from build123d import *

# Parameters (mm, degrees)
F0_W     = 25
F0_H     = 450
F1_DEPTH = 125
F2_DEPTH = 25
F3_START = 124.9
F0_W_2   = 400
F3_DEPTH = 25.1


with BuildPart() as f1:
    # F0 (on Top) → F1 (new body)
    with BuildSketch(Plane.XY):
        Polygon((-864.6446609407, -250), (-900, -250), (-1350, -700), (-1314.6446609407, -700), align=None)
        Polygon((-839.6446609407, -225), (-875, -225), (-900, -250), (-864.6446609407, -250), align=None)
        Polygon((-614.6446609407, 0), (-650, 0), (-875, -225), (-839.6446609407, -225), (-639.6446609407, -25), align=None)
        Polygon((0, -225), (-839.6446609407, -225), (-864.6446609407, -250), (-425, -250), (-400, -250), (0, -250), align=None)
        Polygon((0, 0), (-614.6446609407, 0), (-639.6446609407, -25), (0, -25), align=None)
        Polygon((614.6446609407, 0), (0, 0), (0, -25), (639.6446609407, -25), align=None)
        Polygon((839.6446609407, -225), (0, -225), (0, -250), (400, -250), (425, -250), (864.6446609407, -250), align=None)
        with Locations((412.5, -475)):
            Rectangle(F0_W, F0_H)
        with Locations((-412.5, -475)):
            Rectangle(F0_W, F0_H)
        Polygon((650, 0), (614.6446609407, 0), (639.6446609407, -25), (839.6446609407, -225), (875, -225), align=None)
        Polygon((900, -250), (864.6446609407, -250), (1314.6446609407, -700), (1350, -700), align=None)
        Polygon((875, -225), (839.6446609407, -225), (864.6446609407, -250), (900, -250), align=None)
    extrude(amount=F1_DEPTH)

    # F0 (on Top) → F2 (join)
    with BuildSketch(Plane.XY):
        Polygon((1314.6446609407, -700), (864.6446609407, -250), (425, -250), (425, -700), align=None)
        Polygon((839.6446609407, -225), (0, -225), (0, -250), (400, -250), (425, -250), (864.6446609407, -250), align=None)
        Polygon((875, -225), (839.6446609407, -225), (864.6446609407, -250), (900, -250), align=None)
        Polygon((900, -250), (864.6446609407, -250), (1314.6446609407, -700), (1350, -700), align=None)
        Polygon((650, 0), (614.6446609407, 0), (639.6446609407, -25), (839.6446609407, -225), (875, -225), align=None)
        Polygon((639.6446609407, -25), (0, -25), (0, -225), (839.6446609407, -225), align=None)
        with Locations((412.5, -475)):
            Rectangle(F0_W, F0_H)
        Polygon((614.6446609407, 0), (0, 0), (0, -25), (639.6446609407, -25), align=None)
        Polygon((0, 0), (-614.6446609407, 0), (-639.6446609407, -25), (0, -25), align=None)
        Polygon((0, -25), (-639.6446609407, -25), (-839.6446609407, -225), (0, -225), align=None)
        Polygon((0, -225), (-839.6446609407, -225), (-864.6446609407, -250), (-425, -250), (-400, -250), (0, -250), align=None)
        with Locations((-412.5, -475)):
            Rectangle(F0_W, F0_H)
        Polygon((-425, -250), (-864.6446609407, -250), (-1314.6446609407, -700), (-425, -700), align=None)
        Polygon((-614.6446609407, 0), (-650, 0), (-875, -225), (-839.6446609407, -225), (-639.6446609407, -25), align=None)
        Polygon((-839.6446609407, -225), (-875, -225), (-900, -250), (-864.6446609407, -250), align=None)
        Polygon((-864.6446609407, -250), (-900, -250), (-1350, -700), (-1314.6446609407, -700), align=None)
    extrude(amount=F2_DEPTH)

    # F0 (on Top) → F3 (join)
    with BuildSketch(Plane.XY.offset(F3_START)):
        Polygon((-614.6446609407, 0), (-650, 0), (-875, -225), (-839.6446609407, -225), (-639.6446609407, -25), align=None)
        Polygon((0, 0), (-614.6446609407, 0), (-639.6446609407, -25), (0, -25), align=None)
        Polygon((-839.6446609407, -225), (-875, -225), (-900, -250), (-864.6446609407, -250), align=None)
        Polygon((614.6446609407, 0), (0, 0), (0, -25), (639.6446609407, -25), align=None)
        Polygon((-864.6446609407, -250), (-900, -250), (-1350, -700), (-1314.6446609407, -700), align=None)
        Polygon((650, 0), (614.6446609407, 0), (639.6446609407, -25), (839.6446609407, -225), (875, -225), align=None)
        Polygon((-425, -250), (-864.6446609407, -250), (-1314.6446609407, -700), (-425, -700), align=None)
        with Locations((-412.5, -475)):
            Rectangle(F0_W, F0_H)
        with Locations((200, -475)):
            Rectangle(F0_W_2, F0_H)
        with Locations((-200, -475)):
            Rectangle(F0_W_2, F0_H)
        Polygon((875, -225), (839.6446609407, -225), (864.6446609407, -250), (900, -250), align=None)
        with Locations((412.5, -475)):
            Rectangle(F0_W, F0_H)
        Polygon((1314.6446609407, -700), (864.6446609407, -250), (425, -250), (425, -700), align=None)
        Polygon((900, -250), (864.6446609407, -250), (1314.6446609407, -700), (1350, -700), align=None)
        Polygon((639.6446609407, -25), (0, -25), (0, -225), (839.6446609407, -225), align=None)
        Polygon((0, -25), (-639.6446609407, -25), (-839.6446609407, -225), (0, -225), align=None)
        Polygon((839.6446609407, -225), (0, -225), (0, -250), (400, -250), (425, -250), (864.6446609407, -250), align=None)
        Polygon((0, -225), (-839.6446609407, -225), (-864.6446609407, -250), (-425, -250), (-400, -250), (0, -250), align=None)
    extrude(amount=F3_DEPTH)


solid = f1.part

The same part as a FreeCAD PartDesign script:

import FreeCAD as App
import Part
import Sketcher

V = App.Vector


def add_polygon(sketch, points):
    """Adds a closed chain of lines whose ends are joined by coincident constraints."""
    first, n = sketch.GeometryCount, len(points)
    for a, b in zip(points, points[1:] + points[:1]):
        sketch.addGeometry(Part.LineSegment(App.Vector(*a, 0), App.Vector(*b, 0)), False)
    for i in range(n):
        sketch.addConstraint(Sketcher.Constraint("Coincident", first + i, 2, first + (i + 1) % n, 1))

doc = App.newDocument("Part")
body = doc.addObject("PartDesign::Body", "Body")

sketch1 = doc.addObject("Sketcher::SketchObject", "Sketch")
body.addObject(sketch1)
sketch1.AttachmentSupport = (doc.XY_Plane, [""])
sketch1.MapMode = "FlatFace"
add_polygon(sketch1, [(425, -250), (864.644661, -250), (1314.644661, -700), (1350, -700), (650, 0), (-650, 0), (-1350, -700), (-1314.644661, -700), (-864.644661, -250), (-425, -250), (-425, -700), (-400, -700), (-400, -250), (400, -250), (400, -700), (425, -700)])
add_polygon(sketch1, [(639.644661, -25), (839.644661, -225), (-839.644661, -225), (-639.644661, -25)])
sketch1.addConstraint([
    Sketcher.Constraint("Horizontal", 0),
    Sketcher.Constraint("Horizontal", 2),
    Sketcher.Constraint("Horizontal", 4),
    Sketcher.Constraint("Horizontal", 6),
    Sketcher.Constraint("Horizontal", 8),
    Sketcher.Constraint("Vertical", 9),
    Sketcher.Constraint("Horizontal", 10),
    Sketcher.Constraint("Vertical", 11),
    Sketcher.Constraint("Horizontal", 12),
    Sketcher.Constraint("Vertical", 13),
    Sketcher.Constraint("Horizontal", 14),
    Sketcher.Constraint("Vertical", 15),
    Sketcher.Constraint("Horizontal", 17),
    Sketcher.Constraint("Horizontal", 19),
    Sketcher.Constraint("Symmetric", 3, 2, 4, 2, -1, 1),
    Sketcher.Constraint("Symmetric", 2, 2, 5, 2, -2),
    Sketcher.Constraint("Symmetric", 0, 2, 7, 2, -2),
    Sketcher.Constraint("Symmetric", 10, 2, 13, 2, -2),
    Sketcher.Constraint("Parallel", 1, 3),
    Sketcher.Constraint("Perpendicular", 3, 5),
    Sketcher.Constraint("Parallel", 5, 7),
    Sketcher.Constraint("Perpendicular", 7, 16),
    Sketcher.Constraint("Perpendicular", 16, 18),
    Sketcher.Constraint("Horizontal", 6, 2, 9, 2),
    Sketcher.Constraint("Horizontal", 8, 2, 11, 2),
    Sketcher.Constraint("Equal", 0, 8),
    Sketcher.Constraint("DistanceX", 4, 2, 4, 1, 1300.0),
    Sketcher.Constraint("DistanceX", 10, 1, 10, 2, 25.0),
    Sketcher.Constraint("DistanceX", 12, 1, 12, 2, 800.0),
    Sketcher.Constraint("DistanceY", 9, 2, 9, 1, 450.0),
    Sketcher.Constraint("DistanceY", 0, 2, -1, 1, 250.0),
    Sketcher.Constraint("DistanceY", 16, 2, -1, 1, 225.0),
    Sketcher.Constraint("DistanceY", 18, 2, -1, 1, 25.0),
    Sketcher.Constraint("DistanceX", 16, 2, 0, 2, 25.0),
    Sketcher.Constraint("DistanceX", 7, 2, 17, 2, 25.0),
    Sketcher.Constraint("DistanceX", 0, 1, 0, 2, 439.644661),
])
pad1 = doc.addObject("PartDesign::Pad", "Pad")
body.addObject(pad1)
pad1.Profile = sketch1
pad1.Length = 125

sketch2 = doc.addObject("Sketcher::SketchObject", "Sketch001")
body.addObject(sketch2)
sketch2.AttachmentSupport = (doc.XY_Plane, [""])
sketch2.MapMode = "FlatFace"
add_polygon(sketch2, [(400, -250), (400, -700), (1350, -700), (650, 0), (-650, 0), (-1350, -700), (-400, -700), (-400, -250)])
sketch2.addConstraint([
    Sketcher.Constraint("Vertical", 0),
    Sketcher.Constraint("Horizontal", 1),
    Sketcher.Constraint("Horizontal", 3),
    Sketcher.Constraint("Horizontal", 5),
    Sketcher.Constraint("Vertical", 6),
    Sketcher.Constraint("Horizontal", 7),
    Sketcher.Constraint("Symmetric", 2, 2, 3, 2, -1, 1),
    Sketcher.Constraint("Symmetric", 1, 2, 4, 2, -2),
    Sketcher.Constraint("Perpendicular", 2, 4),
    Sketcher.Constraint("Equal", 1, 5),
    Sketcher.Constraint("DistanceX", 1, 1, 1, 2, 950.0),
    Sketcher.Constraint("DistanceX", 3, 2, 3, 1, 1300.0),
    Sketcher.Constraint("DistanceX", 7, 1, 7, 2, 800.0),
    Sketcher.Constraint("DistanceY", 0, 2, 0, 1, 450.0),
])
pad2 = doc.addObject("PartDesign::Pad", "Pad001")
body.addObject(pad2)
pad2.Profile = sketch2
pad2.Length = 25

sketch3 = doc.addObject("Sketcher::SketchObject", "Sketch002")
body.addObject(sketch3)
sketch3.AttachmentSupport = (doc.XY_Plane, [""])
sketch3.MapMode = "FlatFace"
sketch3.AttachmentOffset = App.Placement(V(0, 0, 124.9), App.Rotation())
add_polygon(sketch3, [(-1350, -700), (1350, -700), (650, 0), (-650, 0)])
sketch3.addConstraint([
    Sketcher.Constraint("Horizontal", 0),
    Sketcher.Constraint("Horizontal", 2),
    Sketcher.Constraint("Symmetric", 1, 2, 2, 2, -1, 1),
    Sketcher.Constraint("Perpendicular", 1, 3),
    Sketcher.Constraint("Equal", 1, 3),
    Sketcher.Constraint("DistanceX", 0, 1, 0, 2, 2700.0),
    Sketcher.Constraint("DistanceX", 2, 2, 2, 1, 1300.0),
])
pad3 = doc.addObject("PartDesign::Pad", "Pad002")
body.addObject(pad3)
pad3.Profile = sketch3
pad3.Length = 25.1

doc.recompute()
